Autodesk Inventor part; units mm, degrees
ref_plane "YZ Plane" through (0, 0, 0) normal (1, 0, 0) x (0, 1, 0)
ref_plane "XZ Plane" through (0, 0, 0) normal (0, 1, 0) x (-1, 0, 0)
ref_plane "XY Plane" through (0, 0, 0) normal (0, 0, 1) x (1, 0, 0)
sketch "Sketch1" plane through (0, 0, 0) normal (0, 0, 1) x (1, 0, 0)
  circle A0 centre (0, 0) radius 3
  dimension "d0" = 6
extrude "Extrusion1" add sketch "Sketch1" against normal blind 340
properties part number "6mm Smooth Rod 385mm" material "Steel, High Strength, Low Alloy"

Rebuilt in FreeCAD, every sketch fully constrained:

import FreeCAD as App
import Part
import Sketcher
Q = App.Units.Quantity

doc = App.newDocument("Part")
params = doc.addObject("Spreadsheet::Sheet", "Params")
for row, (alias, value) in enumerate([
    ("sketch1_diameter", "6 mm"),
    ("pad1_length", "340 mm"),
], start=1):
    params.set(f"A{row}", alias)
    params.set(f"B{row}", "=" + value)
    params.setAlias(f"B{row}", alias)

body = doc.addObject("PartDesign::Body", "Body")

# Sketch on XY plane
sketch1 = body.newObject("Sketcher::SketchObject", "Sketch")
sketch1.AttachmentSupport = (doc.getObject("XY_Plane"), [""])
sketch1.MapMode = "FlatFace"
sketch1.addGeometry(Part.Circle(App.Vector(0, 0, 0), App.Vector(0, 0, 1), 3), False)
sketch1.addConstraint(Sketcher.Constraint("Coincident", 0, 3, -1, 1))
sketch1.addConstraint(Sketcher.Constraint("Diameter", 0, Q("6 mm")))
sketch1.setExpression("Constraints[1]", "Params.sketch1_diameter")
pad1 = body.newObject("PartDesign::Pad", "Pad")
pad1.Profile = sketch1
pad1.setExpression("Length", "Params.pad1_length")
pad1.Reversed = True

doc.recompute()
